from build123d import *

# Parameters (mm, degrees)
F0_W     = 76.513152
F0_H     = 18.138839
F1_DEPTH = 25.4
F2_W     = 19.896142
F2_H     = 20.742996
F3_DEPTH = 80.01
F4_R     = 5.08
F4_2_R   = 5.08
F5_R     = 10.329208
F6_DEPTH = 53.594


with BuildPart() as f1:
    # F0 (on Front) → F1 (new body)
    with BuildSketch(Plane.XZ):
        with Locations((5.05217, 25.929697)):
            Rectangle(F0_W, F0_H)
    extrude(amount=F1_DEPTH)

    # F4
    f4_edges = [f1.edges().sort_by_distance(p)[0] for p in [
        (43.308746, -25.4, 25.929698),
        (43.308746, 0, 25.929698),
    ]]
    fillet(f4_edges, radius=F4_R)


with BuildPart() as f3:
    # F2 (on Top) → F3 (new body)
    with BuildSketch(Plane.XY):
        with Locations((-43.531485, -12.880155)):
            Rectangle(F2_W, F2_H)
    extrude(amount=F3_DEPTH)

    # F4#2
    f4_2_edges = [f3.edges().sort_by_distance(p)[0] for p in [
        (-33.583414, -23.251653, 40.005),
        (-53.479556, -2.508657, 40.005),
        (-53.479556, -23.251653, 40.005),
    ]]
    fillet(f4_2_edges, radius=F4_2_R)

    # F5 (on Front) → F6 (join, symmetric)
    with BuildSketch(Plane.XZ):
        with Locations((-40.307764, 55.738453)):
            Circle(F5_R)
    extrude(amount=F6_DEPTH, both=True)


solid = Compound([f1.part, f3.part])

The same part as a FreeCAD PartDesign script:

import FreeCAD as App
import Part
import Sketcher
Q = App.Units.Quantity


def edges_at(feature, points):
    """Names of the edges that pass closest to the given points."""
    edges = feature.Shape.Edges
    near = lambda p: min(range(len(edges)), key=lambda i: edges[i].distToShape(Part.Vertex(*p))[0])
    return sorted({f"Edge{near(p) + 1}" for p in points})


def add_polygon(sketch, points):
    """Adds a closed chain of lines whose ends are joined by coincident constraints."""
    first, n = sketch.GeometryCount, len(points)
    for a, b in zip(points, points[1:] + points[:1]):
        sketch.addGeometry(Part.LineSegment(App.Vector(*a, 0), App.Vector(*b, 0)), False)
    for i in range(n):
        sketch.addConstraint(Sketcher.Constraint("Coincident", first + i, 2, first + (i + 1) % n, 1))

doc = App.newDocument("Part")
body = doc.addObject("PartDesign::Body", "Body")

sketch1 = body.newObject("Sketcher::SketchObject", "Sketch")
sketch1.AttachmentSupport = (doc.getObject("XZ_Plane"), [""])
sketch1.MapMode = "FlatFace"
add_polygon(sketch1, [(-33, 35), (-33, 17), (43, 17), (43, 35)])
sketch1.addConstraint([
    Sketcher.Constraint("Vertical", 0),
    Sketcher.Constraint("Horizontal", 1),
    Sketcher.Constraint("Vertical", 2),
    Sketcher.Constraint("Horizontal", 3),
    Sketcher.Constraint("DistanceX", 1, 1, 1, 2, 76.513152),
    Sketcher.Constraint("DistanceY", 0, 2, 0, 1, 18.138839),
    Sketcher.Constraint("DistanceX", 0, 2, -1, 1, 33.204406),
    Sketcher.Constraint("DistanceY", -1, 1, 0, 2, 16.860277),
])
pad1 = body.newObject("PartDesign::Pad", "Pad")
pad1.Profile = sketch1
pad1.Length = Q("1 in")
doc.recompute()

fillet = body.newObject("PartDesign::Fillet", "Fillet")
fillet.Base = (pad1, edges_at(pad1, [(43.309, -25.4, 25.93), (43.309, 0, 25.93)]))
fillet.Radius = Q("0.2 in")
body2 = doc.addObject("PartDesign::Body", "Body001")

sketch2 = body2.newObject("Sketcher::SketchObject", "Sketch001")
sketch2.AttachmentSupport = (doc.getObject("XY_Plane001"), [""])
sketch2.MapMode = "FlatFace"
add_polygon(sketch2, [(-53, -3), (-53, -23), (-34, -23), (-34, -3)])
sketch2.addConstraint([
    Sketcher.Constraint("Vertical", 0),
    Sketcher.Constraint("Horizontal", 1),
    Sketcher.Constraint("Vertical", 2),
    Sketcher.Constraint("Horizontal", 3),
    Sketcher.Constraint("DistanceX", 1, 1, 1, 2, 19.896142),
    Sketcher.Constraint("DistanceY", 0, 2, 0, 1, 20.742996),
    Sketcher.Constraint("DistanceX", 0, 2, -1, 1, 53.479556),
    Sketcher.Constraint("DistanceY", 0, 2, -1, 1, 23.251653),
])
pad2 = body2.newObject("PartDesign::Pad", "Pad001")
pad2.Profile = sketch2
pad2.Length = Q("3.15 in")
doc.recompute()

fillet2 = body2.newObject("PartDesign::Fillet", "Fillet001")
fillet2.Base = (pad2, edges_at(pad2, [(-33.583, -23.252, 40.005), (-53.48, -2.509, 40.005), (-53.48, -23.252, 40.005)]))
fillet2.Radius = Q("0.2 in")

sketch3 = body2.newObject("Sketcher::SketchObject", "Sketch002")
sketch3.AttachmentSupport = (doc.getObject("XZ_Plane001"), [""])
sketch3.MapMode = "FlatFace"
sketch3.addGeometry(Part.Circle(App.Vector(-40, 56, 0), App.Vector(0, 0, 1), 10), False)
sketch3.addConstraint([
    Sketcher.Constraint("Diameter", 0, 20.658416),
    Sketcher.Constraint("DistanceX", 0, 3, -1, 1, 40.307764),
    Sketcher.Constraint("DistanceY", -1, 1, 0, 3, 55.738453),
])
pad3 = body2.newObject("PartDesign::Pad", "Pad002")
pad3.Profile = sketch3
pad3.Length = Q("4.22 in")
pad3.Midplane = True

doc.recompute()
